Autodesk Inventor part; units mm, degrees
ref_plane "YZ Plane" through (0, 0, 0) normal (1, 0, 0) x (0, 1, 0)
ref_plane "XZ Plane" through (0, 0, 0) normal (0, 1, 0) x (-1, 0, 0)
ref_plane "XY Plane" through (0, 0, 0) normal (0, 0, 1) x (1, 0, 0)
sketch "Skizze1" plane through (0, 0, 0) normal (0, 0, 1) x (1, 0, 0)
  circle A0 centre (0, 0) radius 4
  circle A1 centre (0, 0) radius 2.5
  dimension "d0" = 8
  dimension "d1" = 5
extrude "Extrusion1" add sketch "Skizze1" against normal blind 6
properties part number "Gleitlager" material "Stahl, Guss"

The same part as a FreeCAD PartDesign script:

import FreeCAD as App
import Part
import Sketcher

V = App.Vector
Q = App.Units.Quantity

doc = App.newDocument("Part")
params = doc.addObject("Spreadsheet::Sheet", "Params")
for row, (alias, value) in enumerate([
    ("sketch1_diameter", "8 mm"),
    ("sketch1_diameter2", "5 mm"),
    ("pad1_length", "6 mm"),
], start=1):
    params.set(f"A{row}", alias)
    params.set(f"B{row}", "=" + value)
    params.setAlias(f"B{row}", alias)

body = doc.addObject("PartDesign::Body", "Body")

sketch1 = doc.addObject("Sketcher::SketchObject", "Sketch")
body.addObject(sketch1)
sketch1.AttachmentSupport = (doc.XY_Plane, [""])
sketch1.MapMode = "FlatFace"
sketch1.addGeometry(Part.Circle(V(0, 0, 0), V(0, 0, 1), 4), False)
sketch1.addGeometry(Part.Circle(V(0, 0, 0), V(0, 0, 1), 2.5), False)
sketch1.addConstraint(Sketcher.Constraint("Coincident", 0, 3, -1, 1))
sketch1.addConstraint(Sketcher.Constraint("Coincident", 1, 3, -1, 1))
sketch1.addConstraint(Sketcher.Constraint("Diameter", 0, Q("8 mm")))
sketch1.addConstraint(Sketcher.Constraint("Diameter", 1, Q("5 mm")))
sketch1.setExpression("Constraints[2]", "Params.sketch1_diameter")
sketch1.setExpression("Constraints[3]", "Params.sketch1_diameter2")
pad1 = doc.addObject("PartDesign::Pad", "Pad")
body.addObject(pad1)
pad1.Profile = sketch1
pad1.setExpression("Length", "Params.pad1_length")
pad1.Reversed = True

doc.recompute()
